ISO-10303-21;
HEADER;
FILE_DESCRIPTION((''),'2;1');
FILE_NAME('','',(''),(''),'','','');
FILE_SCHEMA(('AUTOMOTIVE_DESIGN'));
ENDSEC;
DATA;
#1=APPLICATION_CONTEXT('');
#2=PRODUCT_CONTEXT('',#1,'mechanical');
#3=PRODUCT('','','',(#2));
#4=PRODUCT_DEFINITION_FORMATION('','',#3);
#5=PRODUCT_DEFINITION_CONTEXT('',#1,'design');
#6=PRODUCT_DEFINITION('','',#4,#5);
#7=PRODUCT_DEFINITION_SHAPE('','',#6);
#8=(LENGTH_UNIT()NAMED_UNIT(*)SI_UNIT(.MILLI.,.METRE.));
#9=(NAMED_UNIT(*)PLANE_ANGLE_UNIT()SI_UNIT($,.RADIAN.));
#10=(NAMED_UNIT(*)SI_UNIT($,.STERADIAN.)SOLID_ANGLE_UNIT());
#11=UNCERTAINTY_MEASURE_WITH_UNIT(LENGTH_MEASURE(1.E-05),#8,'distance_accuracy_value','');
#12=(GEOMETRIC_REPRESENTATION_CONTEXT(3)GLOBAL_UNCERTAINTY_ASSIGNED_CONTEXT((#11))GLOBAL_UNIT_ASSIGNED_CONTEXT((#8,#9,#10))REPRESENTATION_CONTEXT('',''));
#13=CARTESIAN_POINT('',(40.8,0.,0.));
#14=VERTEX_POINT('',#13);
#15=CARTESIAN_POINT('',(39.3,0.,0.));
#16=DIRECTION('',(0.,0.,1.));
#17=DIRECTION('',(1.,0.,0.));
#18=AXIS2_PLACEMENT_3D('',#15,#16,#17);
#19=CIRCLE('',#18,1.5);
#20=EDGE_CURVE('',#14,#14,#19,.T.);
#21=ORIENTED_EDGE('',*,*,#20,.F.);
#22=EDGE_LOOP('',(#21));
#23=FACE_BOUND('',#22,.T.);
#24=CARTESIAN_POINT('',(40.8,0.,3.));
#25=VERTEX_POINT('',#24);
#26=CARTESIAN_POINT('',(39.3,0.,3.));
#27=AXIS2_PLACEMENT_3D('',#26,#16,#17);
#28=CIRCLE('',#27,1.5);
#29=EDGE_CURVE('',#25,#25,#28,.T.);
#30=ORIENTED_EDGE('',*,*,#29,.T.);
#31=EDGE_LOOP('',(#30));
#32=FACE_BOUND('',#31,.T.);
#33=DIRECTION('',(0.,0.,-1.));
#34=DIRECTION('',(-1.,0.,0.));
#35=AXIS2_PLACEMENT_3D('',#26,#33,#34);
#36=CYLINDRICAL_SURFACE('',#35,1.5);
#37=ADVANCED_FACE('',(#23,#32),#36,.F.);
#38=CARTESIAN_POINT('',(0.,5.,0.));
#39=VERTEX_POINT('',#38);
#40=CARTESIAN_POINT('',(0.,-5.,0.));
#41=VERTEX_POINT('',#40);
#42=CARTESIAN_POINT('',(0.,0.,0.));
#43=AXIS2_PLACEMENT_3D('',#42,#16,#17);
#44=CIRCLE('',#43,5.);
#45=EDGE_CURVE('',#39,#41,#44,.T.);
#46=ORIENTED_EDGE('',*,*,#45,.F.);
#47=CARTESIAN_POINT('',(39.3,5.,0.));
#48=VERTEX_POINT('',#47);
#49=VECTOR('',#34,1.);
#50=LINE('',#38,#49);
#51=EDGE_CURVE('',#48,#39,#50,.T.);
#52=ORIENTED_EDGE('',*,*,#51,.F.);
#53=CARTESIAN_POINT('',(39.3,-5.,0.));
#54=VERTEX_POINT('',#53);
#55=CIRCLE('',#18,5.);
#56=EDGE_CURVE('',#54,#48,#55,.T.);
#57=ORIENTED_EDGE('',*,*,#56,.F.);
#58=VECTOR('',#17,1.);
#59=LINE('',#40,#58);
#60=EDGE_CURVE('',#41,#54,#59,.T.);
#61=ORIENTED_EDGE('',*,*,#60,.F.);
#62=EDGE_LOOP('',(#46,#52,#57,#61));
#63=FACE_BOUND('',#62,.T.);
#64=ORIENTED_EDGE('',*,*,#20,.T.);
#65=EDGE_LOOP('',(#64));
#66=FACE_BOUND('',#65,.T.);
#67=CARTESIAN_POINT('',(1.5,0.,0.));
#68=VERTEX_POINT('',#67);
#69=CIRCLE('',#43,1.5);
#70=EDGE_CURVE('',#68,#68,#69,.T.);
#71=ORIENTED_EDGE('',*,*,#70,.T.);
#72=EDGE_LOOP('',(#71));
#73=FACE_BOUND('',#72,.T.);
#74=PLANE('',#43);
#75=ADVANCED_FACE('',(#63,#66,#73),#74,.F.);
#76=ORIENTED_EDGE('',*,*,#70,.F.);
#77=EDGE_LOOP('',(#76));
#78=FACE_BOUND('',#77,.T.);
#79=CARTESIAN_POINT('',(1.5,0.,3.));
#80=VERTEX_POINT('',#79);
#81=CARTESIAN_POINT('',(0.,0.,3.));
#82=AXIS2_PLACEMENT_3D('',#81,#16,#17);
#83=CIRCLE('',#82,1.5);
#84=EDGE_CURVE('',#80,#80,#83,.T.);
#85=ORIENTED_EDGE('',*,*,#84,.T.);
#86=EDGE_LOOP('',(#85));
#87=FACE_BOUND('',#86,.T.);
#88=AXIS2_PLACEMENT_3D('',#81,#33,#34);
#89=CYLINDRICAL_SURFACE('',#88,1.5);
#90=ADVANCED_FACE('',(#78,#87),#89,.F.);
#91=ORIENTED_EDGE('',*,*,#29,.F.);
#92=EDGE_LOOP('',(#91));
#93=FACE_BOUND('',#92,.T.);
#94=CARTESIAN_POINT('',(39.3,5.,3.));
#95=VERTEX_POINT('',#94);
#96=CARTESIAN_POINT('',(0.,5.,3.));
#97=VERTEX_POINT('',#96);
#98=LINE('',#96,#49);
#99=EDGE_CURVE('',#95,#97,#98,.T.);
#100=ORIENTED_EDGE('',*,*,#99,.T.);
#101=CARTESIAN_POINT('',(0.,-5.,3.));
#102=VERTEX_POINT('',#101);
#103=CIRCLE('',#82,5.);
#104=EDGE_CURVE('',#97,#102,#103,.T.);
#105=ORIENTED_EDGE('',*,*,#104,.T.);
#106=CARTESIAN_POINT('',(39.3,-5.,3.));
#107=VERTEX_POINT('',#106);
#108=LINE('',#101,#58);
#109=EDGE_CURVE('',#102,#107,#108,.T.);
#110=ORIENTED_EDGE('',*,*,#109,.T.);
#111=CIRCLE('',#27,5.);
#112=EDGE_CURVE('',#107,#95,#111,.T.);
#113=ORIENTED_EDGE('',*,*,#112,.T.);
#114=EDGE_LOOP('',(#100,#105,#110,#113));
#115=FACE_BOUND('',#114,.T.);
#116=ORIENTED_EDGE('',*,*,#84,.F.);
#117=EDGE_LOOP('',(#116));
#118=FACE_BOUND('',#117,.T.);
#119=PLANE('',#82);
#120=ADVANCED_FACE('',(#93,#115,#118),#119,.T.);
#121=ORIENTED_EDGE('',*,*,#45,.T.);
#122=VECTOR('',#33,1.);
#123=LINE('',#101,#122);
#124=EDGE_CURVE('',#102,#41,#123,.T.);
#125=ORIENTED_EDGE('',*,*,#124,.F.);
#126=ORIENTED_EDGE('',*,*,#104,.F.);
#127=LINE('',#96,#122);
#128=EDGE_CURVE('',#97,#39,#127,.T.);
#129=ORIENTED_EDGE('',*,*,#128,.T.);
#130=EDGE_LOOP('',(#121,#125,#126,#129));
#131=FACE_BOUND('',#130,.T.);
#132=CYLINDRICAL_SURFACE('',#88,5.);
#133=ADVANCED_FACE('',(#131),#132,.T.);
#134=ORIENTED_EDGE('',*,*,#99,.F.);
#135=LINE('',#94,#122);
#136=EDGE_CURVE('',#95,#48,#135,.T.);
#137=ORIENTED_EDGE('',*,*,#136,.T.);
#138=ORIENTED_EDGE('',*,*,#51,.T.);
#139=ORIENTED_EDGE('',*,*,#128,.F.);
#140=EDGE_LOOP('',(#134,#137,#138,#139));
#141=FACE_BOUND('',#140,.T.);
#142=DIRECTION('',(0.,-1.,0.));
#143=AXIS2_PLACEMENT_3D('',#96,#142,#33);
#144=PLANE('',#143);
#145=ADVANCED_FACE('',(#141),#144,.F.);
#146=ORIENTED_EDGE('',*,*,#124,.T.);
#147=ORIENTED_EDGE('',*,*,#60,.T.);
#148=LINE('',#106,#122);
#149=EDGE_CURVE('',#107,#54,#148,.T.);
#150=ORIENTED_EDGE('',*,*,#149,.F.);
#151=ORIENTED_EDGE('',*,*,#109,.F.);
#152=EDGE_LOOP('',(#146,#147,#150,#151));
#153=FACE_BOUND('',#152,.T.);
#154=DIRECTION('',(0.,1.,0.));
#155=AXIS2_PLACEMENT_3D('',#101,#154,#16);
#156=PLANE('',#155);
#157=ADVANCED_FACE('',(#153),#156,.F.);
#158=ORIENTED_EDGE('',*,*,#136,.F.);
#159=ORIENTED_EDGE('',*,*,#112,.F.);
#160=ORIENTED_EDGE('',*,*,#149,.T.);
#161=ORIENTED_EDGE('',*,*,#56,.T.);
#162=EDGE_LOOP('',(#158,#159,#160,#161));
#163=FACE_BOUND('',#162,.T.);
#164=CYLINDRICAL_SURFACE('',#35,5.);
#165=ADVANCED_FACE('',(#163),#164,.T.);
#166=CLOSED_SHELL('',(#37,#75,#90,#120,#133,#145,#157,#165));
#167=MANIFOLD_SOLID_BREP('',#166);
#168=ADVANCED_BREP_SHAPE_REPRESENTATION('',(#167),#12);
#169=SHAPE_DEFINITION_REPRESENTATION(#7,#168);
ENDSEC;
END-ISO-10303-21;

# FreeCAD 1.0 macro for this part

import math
import FreeCAD as App
import Part
import Sketcher

V = App.Vector

doc = App.newDocument("Part")
body = doc.addObject("PartDesign::Body", "Body")

# Sketch on XY plane
sketch1 = doc.addObject("Sketcher::SketchObject", "Sketch")
body.addObject(sketch1)
sketch1.AttachmentSupport = (doc.XY_Plane, [""])
sketch1.MapMode = "FlatFace"
sketch1.addGeometry([
    Part.LineSegment(V(39.3, 5, 0), V(0, 5, 0)),  # 0
    Part.ArcOfCircle(Part.Circle(V(0, 0, 0), V(0, 0, 1), 5), math.radians(90), math.radians(270)),  # 1
    Part.LineSegment(V(0, -5, 0), V(39.3, -5, 0)),  # 2
    Part.ArcOfCircle(Part.Circle(V(39.3, 0, 0), V(0, 0, 1), 5), math.radians(-90), math.radians(90)),  # 3
    Part.Circle(V(39.3, 0, 0), V(0, 0, 1), 1.5),  # 4
    Part.Circle(V(0, 0, 0), V(0, 0, 1), 1.5),  # 5
], False)
sketch1.addConstraint([
    Sketcher.Constraint("Tangent", 0, 2, 1, 1),
    Sketcher.Constraint("Tangent", 1, 2, 2, 1),
    Sketcher.Constraint("Tangent", 2, 2, 3, 1),
    Sketcher.Constraint("Tangent", 3, 2, 0, 1),
    Sketcher.Constraint("Horizontal", 0),
    Sketcher.Constraint("Horizontal", 2),
    Sketcher.Constraint("Coincident", 1, 3, -1, 1),
    Sketcher.Constraint("Coincident", 5, 3, -1, 1),
    Sketcher.Constraint("Coincident", 4, 3, 3, 3),
    Sketcher.Constraint("Equal", 4, 5),
    Sketcher.Constraint("Diameter", 4, 3.0),
    Sketcher.Constraint("Radius", 1, 5.0),
    Sketcher.Constraint("DistanceX", 0, 2, 0, 1, 39.3),
])
pad1 = doc.addObject("PartDesign::Pad", "Pad")
body.addObject(pad1)
pad1.Profile = sketch1
pad1.Length = 3

doc.recompute()
